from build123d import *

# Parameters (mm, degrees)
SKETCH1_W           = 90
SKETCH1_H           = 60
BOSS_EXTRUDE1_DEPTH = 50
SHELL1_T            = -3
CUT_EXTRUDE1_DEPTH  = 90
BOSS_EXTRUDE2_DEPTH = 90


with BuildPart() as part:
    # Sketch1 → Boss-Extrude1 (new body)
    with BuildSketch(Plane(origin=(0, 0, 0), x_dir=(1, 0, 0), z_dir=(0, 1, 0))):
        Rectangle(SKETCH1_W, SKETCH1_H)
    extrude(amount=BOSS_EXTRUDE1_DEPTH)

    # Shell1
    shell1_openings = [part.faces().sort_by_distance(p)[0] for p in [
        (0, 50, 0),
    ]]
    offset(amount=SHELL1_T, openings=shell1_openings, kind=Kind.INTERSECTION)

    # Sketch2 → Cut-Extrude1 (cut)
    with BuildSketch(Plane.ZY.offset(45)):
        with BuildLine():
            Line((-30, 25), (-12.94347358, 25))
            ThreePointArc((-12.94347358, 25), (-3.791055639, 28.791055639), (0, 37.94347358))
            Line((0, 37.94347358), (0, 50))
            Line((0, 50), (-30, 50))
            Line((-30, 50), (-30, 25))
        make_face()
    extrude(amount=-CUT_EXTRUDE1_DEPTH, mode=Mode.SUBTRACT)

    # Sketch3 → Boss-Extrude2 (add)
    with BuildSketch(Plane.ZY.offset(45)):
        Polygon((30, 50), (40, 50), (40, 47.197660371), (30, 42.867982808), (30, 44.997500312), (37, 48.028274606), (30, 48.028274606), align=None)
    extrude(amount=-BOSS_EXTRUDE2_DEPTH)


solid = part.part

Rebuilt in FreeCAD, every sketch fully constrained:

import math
import FreeCAD as App
import Part
import Sketcher

V = App.Vector
Q = App.Units.Quantity


def faces_at(feature, points):
    """Names of the faces that lie closest to the given points."""
    faces = feature.Shape.Faces
    near = lambda p: min(range(len(faces)), key=lambda i: faces[i].distToShape(Part.Vertex(*p))[0])
    return sorted({f"Face{near(p) + 1}" for p in points})


def add_polygon(sketch, points):
    """Adds a closed chain of lines whose ends are joined by coincident constraints."""
    first, n = sketch.GeometryCount, len(points)
    for a, b in zip(points, points[1:] + points[:1]):
        sketch.addGeometry(Part.LineSegment(App.Vector(*a, 0), App.Vector(*b, 0)), False)
    for i in range(n):
        sketch.addConstraint(Sketcher.Constraint("Coincident", first + i, 2, first + (i + 1) % n, 1))

doc = App.newDocument("Part")
params = doc.addObject("Spreadsheet::Sheet", "Params")
for row, (alias, value) in enumerate([
    ("sketch1_width", "90 mm"),
    ("sketch1_height", "60 mm"),
    ("pad1_length", "50 mm"),
    ("thickness_wall", "3 mm"),
    ("sketch2_width", "25 mm"),
    ("sketch2_height", "30 mm"),
    ("pocket1_length", "90 mm"),
    ("sketch3_height", "10 mm"),
    ("sketch3_height2", "7 mm"),
    ("pad2_length", "90 mm"),
], start=1):
    params.set(f"A{row}", alias)
    params.set(f"B{row}", "=" + value)
    params.setAlias(f"B{row}", alias)

body = doc.addObject("PartDesign::Body", "Body")

sketch1 = body.newObject("Sketcher::SketchObject", "Sketch")
sketch1.AttachmentSupport = (doc.getObject("XZ_Plane"), [""])
sketch1.MapMode = "FlatFace"
add_polygon(sketch1, [(-45, -30), (-45, 30), (45, 30), (45, -30)])
sketch1.addConstraint(Sketcher.Constraint("Vertical", 0))
sketch1.addConstraint(Sketcher.Constraint("Horizontal", 1))
sketch1.addConstraint(Sketcher.Constraint("Vertical", 2))
sketch1.addConstraint(Sketcher.Constraint("Horizontal", 3))
sketch1.addConstraint(Sketcher.Constraint("Symmetric", 0, 2, 2, 2, -1, 1))
sketch1.addConstraint(Sketcher.Constraint("DistanceX", 1, 1, 1, 2, Q("90 mm")))
sketch1.addConstraint(Sketcher.Constraint("DistanceY", 0, 1, 0, 2, Q("60 mm")))
sketch1.setExpression("Constraints[9]", "Params.sketch1_width")
sketch1.setExpression("Constraints[10]", "Params.sketch1_height")
pad1 = body.newObject("PartDesign::Pad", "Pad")
pad1.Profile = sketch1
pad1.setExpression("Length", "Params.pad1_length")
pad1.Reversed = True
doc.recompute()

thickness = body.newObject("PartDesign::Thickness", "Thickness")
thickness.Base = (pad1, faces_at(pad1, [(0, 50, 0)]))
thickness.setExpression("Value", "Params.thickness_wall")
thickness.Reversed = True
thickness.Join = "Intersection"

sketch2 = body.newObject("Sketcher::SketchObject", "Sketch001")
sketch2.AttachmentSupport = (doc.getObject("YZ_Plane"), [""])
sketch2.MapMode = "FlatFace"
sketch2.AttachmentOffset = App.Placement(V(0, 0, -45), App.Rotation())
sketch2.addGeometry(Part.LineSegment(V(25, -30, 0), V(25, -12.943474, 0)), False)
sketch2.addGeometry(Part.ArcOfCircle(Part.Circle(V(37.943474, -12.943474, 0), V(0, 0, 1), 12.943474), math.radians(90), math.radians(180)), False)
sketch2.addGeometry(Part.LineSegment(V(37.943474, 0, 0), V(50, 0, 0)), False)
sketch2.addGeometry(Part.LineSegment(V(50, 0, 0), V(50, -30, 0)), False)
sketch2.addGeometry(Part.LineSegment(V(50, -30, 0), V(25, -30, 0)), False)
sketch2.addConstraint(Sketcher.Constraint("Tangent", 0, 2, 1, 2))
sketch2.addConstraint(Sketcher.Constraint("Tangent", 1, 1, 2, 1))
sketch2.addConstraint(Sketcher.Constraint("Coincident", 2, 2, 3, 1))
sketch2.addConstraint(Sketcher.Constraint("Coincident", 3, 2, 4, 1))
sketch2.addConstraint(Sketcher.Constraint("Coincident", 4, 2, 0, 1))
sketch2.addConstraint(Sketcher.Constraint("Vertical", 0))
sketch2.addConstraint(Sketcher.Constraint("Horizontal", 2))
sketch2.addConstraint(Sketcher.Constraint("Vertical", 3))
sketch2.addConstraint(Sketcher.Constraint("Horizontal", 4))
sketch2.addConstraint(Sketcher.Constraint("PointOnObject", 1, 1, -1))
sketch2.addConstraint(Sketcher.Constraint("DistanceX", 4, 2, 4, 1, Q("25 mm")))
sketch2.addConstraint(Sketcher.Constraint("DistanceY", 3, 2, 3, 1, Q("30 mm")))
sketch2.addConstraint(Sketcher.Constraint("DistanceX", -1, 1, 0, 2, Q("25 mm")))
sketch2.addConstraint(Sketcher.Constraint("Radius", 1, Q("12.943474 mm")))
sketch2.setExpression("Constraints[10]", "Params.sketch2_width")
sketch2.setExpression("Constraints[11]", "Params.sketch2_height")
pocket1 = body.newObject("PartDesign::Pocket", "Pocket")
pocket1.Profile = sketch2
pocket1.setExpression("Length", "Params.pocket1_length")
pocket1.Reversed = True

sketch3 = body.newObject("Sketcher::SketchObject", "Sketch002")
sketch3.AttachmentSupport = (doc.getObject("YZ_Plane"), [""])
sketch3.MapMode = "FlatFace"
sketch3.AttachmentOffset = App.Placement(V(0, 0, -45), App.Rotation())
add_polygon(sketch3, [(50, 40), (50, 30), (48.028275, 30), (48.028275, 37), (44.9975, 30), (42.867983, 30), (47.19766, 40)])
sketch3.addConstraint(Sketcher.Constraint("Vertical", 0))
sketch3.addConstraint(Sketcher.Constraint("Horizontal", 1))
sketch3.addConstraint(Sketcher.Constraint("Vertical", 2))
sketch3.addConstraint(Sketcher.Constraint("Horizontal", 4))
sketch3.addConstraint(Sketcher.Constraint("Horizontal", 6))
sketch3.addConstraint(Sketcher.Constraint("Parallel", 3, 5))
sketch3.addConstraint(Sketcher.Constraint("Horizontal", 1, 2, 3, 2))
sketch3.addConstraint(Sketcher.Constraint("DistanceY", 0, 2, 0, 1, Q("10 mm")))
sketch3.addConstraint(Sketcher.Constraint("DistanceY", 2, 1, 2, 2, Q("7 mm")))
sketch3.addConstraint(Sketcher.Constraint("DistanceX", -1, 1, 0, 2, Q("50 mm")))
sketch3.addConstraint(Sketcher.Constraint("DistanceY", -1, 1, 0, 2, Q("30 mm")))
sketch3.addConstraint(Sketcher.Constraint("DistanceX", 6, 1, 6, 2, Q("2.80234 mm")))
sketch3.addConstraint(Sketcher.Constraint("DistanceX", -1, 1, 3, 2, Q("44.9975 mm")))
sketch3.addConstraint(Sketcher.Constraint("Distance", 3, Q("7.627948 mm")))
sketch3.setExpression("Constraints[14]", "Params.sketch3_height")
sketch3.setExpression("Constraints[15]", "Params.sketch3_height2")
pad2 = body.newObject("PartDesign::Pad", "Pad001")
pad2.Profile = sketch3
pad2.setExpression("Length", "Params.pad2_length")

doc.recompute()
